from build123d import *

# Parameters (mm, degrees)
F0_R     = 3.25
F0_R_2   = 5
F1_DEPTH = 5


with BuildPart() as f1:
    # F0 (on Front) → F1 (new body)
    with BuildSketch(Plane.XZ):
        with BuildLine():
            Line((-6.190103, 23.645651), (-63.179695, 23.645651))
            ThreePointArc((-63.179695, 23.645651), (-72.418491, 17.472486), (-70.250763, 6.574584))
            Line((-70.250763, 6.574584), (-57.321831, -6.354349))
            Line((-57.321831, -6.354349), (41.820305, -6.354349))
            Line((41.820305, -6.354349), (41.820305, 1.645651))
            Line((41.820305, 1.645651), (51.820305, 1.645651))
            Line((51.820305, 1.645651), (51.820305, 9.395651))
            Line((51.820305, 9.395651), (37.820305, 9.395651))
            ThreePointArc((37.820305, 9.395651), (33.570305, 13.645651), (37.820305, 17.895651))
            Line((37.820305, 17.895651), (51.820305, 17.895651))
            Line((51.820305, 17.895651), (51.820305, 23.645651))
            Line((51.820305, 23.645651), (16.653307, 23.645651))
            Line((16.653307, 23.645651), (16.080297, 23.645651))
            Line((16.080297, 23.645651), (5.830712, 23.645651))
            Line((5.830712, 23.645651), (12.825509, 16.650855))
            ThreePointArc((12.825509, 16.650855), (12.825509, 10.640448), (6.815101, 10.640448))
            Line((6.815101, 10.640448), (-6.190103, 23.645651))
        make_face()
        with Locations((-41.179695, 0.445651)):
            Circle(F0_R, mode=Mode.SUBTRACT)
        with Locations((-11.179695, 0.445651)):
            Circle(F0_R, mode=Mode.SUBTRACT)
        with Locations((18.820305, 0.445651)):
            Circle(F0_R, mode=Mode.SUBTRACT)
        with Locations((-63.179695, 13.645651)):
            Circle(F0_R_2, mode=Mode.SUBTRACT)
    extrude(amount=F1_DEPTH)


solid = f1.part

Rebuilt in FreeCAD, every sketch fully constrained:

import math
import FreeCAD as App
import Part
import Sketcher
Q = App.Units.Quantity

doc = App.newDocument("Part")
body = doc.addObject("PartDesign::Body", "Body")

sketch1 = doc.addObject("Sketcher::SketchObject", "Sketch")
body.addObject(sketch1)
sketch1.AttachmentSupport = (doc.XZ_Plane, [""])
sketch1.MapMode = "FlatFace"
sketch1.addGeometry(Part.LineSegment(App.Vector(-6.190103, 23.645651, 0), App.Vector(-63.179695, 23.645651, 0)), False)
sketch1.addGeometry(Part.ArcOfCircle(Part.Circle(App.Vector(-63.179697, 13.645652, 0), App.Vector(0, 0, 1), 9.999999), math.radians(89.999991), math.radians(225.000006)), False)
sketch1.addGeometry(Part.LineSegment(App.Vector(-70.250763, 6.574584, 0), App.Vector(-57.321831, -6.354349, 0)), False)
sketch1.addGeometry(Part.LineSegment(App.Vector(-57.321831, -6.354349, 0), App.Vector(41.820305, -6.354349, 0)), False)
sketch1.addGeometry(Part.LineSegment(App.Vector(41.820305, -6.354349, 0), App.Vector(41.820305, 1.645651, 0)), False)
sketch1.addGeometry(Part.LineSegment(App.Vector(41.820305, 1.645651, 0), App.Vector(51.820305, 1.645651, 0)), False)
sketch1.addGeometry(Part.LineSegment(App.Vector(51.820305, 1.645651, 0), App.Vector(51.820305, 9.395651, 0)), False)
sketch1.addGeometry(Part.LineSegment(App.Vector(51.820305, 9.395651, 0), App.Vector(37.820305, 9.395651, 0)), False)
sketch1.addGeometry(Part.ArcOfCircle(Part.Circle(App.Vector(37.820305, 13.645651, 0), App.Vector(0, 0, 1), 4.25), math.radians(90), math.radians(270)), False)
sketch1.addGeometry(Part.LineSegment(App.Vector(37.820305, 17.895651, 0), App.Vector(51.820305, 17.895651, 0)), False)
sketch1.addGeometry(Part.LineSegment(App.Vector(51.820305, 17.895651, 0), App.Vector(51.820305, 23.645651, 0)), False)
sketch1.addGeometry(Part.LineSegment(App.Vector(51.820305, 23.645651, 0), App.Vector(5.830712, 23.645651, 0)), False)
sketch1.addGeometry(Part.LineSegment(App.Vector(5.830712, 23.645651, 0), App.Vector(12.825509, 16.650855, 0)), False)
sketch1.addGeometry(Part.ArcOfCircle(Part.Circle(App.Vector(9.820305, 13.645651, 0), App.Vector(0, 0, 1), 4.25), math.radians(-135.000005), math.radians(44.999995)), False)
sketch1.addGeometry(Part.LineSegment(App.Vector(6.815101, 10.640448, 0), App.Vector(-6.190103, 23.645651, 0)), False)
sketch1.addGeometry(Part.Circle(App.Vector(-41.179695, 0.445651, 0), App.Vector(0, 0, 1), 3.25), False)
sketch1.addGeometry(Part.Circle(App.Vector(-11.179695, 0.445651, 0), App.Vector(0, 0, 1), 3.25), False)
sketch1.addGeometry(Part.Circle(App.Vector(18.820305, 0.445651, 0), App.Vector(0, 0, 1), 3.25), False)
sketch1.addGeometry(Part.Circle(App.Vector(-63.179695, 13.645651, 0), App.Vector(0, 0, 1), 5), False)
sketch1.addConstraint(Sketcher.Constraint("Tangent", 0, 2, 1, 1))
sketch1.addConstraint(Sketcher.Constraint("Tangent", 1, 2, 2, 1))
sketch1.addConstraint(Sketcher.Constraint("Coincident", 2, 2, 3, 1))
sketch1.addConstraint(Sketcher.Constraint("Coincident", 3, 2, 4, 1))
sketch1.addConstraint(Sketcher.Constraint("Coincident", 4, 2, 5, 1))
sketch1.addConstraint(Sketcher.Constraint("Coincident", 5, 2, 6, 1))
sketch1.addConstraint(Sketcher.Constraint("Coincident", 6, 2, 7, 1))
sketch1.addConstraint(Sketcher.Constraint("Tangent", 7, 2, 8, 2))
sketch1.addConstraint(Sketcher.Constraint("Tangent", 8, 1, 9, 1))
sketch1.addConstraint(Sketcher.Constraint("Coincident", 9, 2, 10, 1))
sketch1.addConstraint(Sketcher.Constraint("Coincident", 10, 2, 11, 1))
sketch1.addConstraint(Sketcher.Constraint("Coincident", 11, 2, 12, 1))
sketch1.addConstraint(Sketcher.Constraint("Tangent", 12, 2, 13, 2))
sketch1.addConstraint(Sketcher.Constraint("Tangent", 13, 1, 14, 1))
sketch1.addConstraint(Sketcher.Constraint("Coincident", 14, 2, 0, 1))
sketch1.addConstraint(Sketcher.Constraint("Horizontal", 0))
sketch1.addConstraint(Sketcher.Constraint("Horizontal", 3))
sketch1.addConstraint(Sketcher.Constraint("Vertical", 4))
sketch1.addConstraint(Sketcher.Constraint("Horizontal", 5))
sketch1.addConstraint(Sketcher.Constraint("Vertical", 6))
sketch1.addConstraint(Sketcher.Constraint("Horizontal", 7))
sketch1.addConstraint(Sketcher.Constraint("Horizontal", 9))
sketch1.addConstraint(Sketcher.Constraint("Vertical", 10))
sketch1.addConstraint(Sketcher.Constraint("Horizontal", 11))
sketch1.addConstraint(Sketcher.Constraint("Coincident", 18, 3, 1, 3))
sketch1.addConstraint(Sketcher.Constraint("Equal", 8, 13))
sketch1.addConstraint(Sketcher.Constraint("Equal", 15, 16))
sketch1.addConstraint(Sketcher.Constraint("Equal", 16, 17))
sketch1.addConstraint(Sketcher.Constraint("Parallel", 2, 12))
sketch1.addConstraint(Sketcher.Constraint("Parallel", 12, 14))
sketch1.addConstraint(Sketcher.Constraint("Horizontal", 1, 3, 8, 3))
sketch1.addConstraint(Sketcher.Constraint("Horizontal", 8, 3, 13, 3))
sketch1.addConstraint(Sketcher.Constraint("Horizontal", 15, 3, 16, 3))
sketch1.addConstraint(Sketcher.Constraint("Horizontal", 16, 3, 17, 3))
sketch1.addConstraint(Sketcher.Constraint("Horizontal", 0, 2, 10, 2))
sketch1.addConstraint(Sketcher.Constraint("Vertical", 6, 2, 9, 2))
sketch1.addConstraint(Sketcher.Constraint("Diameter", 18, Q("10 mm")))
sketch1.addConstraint(Sketcher.Constraint("Radius", 1, Q("9.999999 mm")))
sketch1.addConstraint(Sketcher.Constraint("Diameter", 15, Q("6.5 mm")))
sketch1.addConstraint(Sketcher.Constraint("DistanceX", 5, 1, 5, 2, Q("10 mm")))
sketch1.addConstraint(Sketcher.Constraint("DistanceX", 7, 2, 7, 1, Q("14 mm")))
sketch1.addConstraint(Sketcher.Constraint("DistanceY", 4, 1, 4, 2, Q("8 mm")))
sketch1.addConstraint(Sketcher.Constraint("Angle", 2, Q("-45.000002 deg")))
sketch1.addConstraint(Sketcher.Constraint("Radius", 8, Q("4.25 mm")))
sketch1.addConstraint(Sketcher.Constraint("DistanceX", 1, 3, 8, 3, Q("101.000002 mm")))
sketch1.addConstraint(Sketcher.Constraint("DistanceX", 13, 3, 8, 3, Q("28 mm")))
sketch1.addConstraint(Sketcher.Constraint("DistanceX", 1, 3, 15, 3, Q("22.000002 mm")))
sketch1.addConstraint(Sketcher.Constraint("DistanceX", 16, 3, 13, 3, Q("21 mm")))
sketch1.addConstraint(Sketcher.Constraint("DistanceX", 13, 3, 17, 3, Q("9 mm")))
sketch1.addConstraint(Sketcher.Constraint("DistanceY", 2, 2, 18, 3, Q("20 mm")))
sketch1.addConstraint(Sketcher.Constraint("DistanceY", 15, 3, 1, 3, Q("13.200001 mm")))
sketch1.addConstraint(Sketcher.Constraint("DistanceX", -1, 1, 13, 1, Q("6.815101 mm")))
sketch1.addConstraint(Sketcher.Constraint("DistanceY", -1, 1, 1, 3, Q("13.645652 mm")))
pad1 = doc.addObject("PartDesign::Pad", "Pad")
body.addObject(pad1)
pad1.Profile = sketch1
pad1.Length = 5

doc.recompute()
